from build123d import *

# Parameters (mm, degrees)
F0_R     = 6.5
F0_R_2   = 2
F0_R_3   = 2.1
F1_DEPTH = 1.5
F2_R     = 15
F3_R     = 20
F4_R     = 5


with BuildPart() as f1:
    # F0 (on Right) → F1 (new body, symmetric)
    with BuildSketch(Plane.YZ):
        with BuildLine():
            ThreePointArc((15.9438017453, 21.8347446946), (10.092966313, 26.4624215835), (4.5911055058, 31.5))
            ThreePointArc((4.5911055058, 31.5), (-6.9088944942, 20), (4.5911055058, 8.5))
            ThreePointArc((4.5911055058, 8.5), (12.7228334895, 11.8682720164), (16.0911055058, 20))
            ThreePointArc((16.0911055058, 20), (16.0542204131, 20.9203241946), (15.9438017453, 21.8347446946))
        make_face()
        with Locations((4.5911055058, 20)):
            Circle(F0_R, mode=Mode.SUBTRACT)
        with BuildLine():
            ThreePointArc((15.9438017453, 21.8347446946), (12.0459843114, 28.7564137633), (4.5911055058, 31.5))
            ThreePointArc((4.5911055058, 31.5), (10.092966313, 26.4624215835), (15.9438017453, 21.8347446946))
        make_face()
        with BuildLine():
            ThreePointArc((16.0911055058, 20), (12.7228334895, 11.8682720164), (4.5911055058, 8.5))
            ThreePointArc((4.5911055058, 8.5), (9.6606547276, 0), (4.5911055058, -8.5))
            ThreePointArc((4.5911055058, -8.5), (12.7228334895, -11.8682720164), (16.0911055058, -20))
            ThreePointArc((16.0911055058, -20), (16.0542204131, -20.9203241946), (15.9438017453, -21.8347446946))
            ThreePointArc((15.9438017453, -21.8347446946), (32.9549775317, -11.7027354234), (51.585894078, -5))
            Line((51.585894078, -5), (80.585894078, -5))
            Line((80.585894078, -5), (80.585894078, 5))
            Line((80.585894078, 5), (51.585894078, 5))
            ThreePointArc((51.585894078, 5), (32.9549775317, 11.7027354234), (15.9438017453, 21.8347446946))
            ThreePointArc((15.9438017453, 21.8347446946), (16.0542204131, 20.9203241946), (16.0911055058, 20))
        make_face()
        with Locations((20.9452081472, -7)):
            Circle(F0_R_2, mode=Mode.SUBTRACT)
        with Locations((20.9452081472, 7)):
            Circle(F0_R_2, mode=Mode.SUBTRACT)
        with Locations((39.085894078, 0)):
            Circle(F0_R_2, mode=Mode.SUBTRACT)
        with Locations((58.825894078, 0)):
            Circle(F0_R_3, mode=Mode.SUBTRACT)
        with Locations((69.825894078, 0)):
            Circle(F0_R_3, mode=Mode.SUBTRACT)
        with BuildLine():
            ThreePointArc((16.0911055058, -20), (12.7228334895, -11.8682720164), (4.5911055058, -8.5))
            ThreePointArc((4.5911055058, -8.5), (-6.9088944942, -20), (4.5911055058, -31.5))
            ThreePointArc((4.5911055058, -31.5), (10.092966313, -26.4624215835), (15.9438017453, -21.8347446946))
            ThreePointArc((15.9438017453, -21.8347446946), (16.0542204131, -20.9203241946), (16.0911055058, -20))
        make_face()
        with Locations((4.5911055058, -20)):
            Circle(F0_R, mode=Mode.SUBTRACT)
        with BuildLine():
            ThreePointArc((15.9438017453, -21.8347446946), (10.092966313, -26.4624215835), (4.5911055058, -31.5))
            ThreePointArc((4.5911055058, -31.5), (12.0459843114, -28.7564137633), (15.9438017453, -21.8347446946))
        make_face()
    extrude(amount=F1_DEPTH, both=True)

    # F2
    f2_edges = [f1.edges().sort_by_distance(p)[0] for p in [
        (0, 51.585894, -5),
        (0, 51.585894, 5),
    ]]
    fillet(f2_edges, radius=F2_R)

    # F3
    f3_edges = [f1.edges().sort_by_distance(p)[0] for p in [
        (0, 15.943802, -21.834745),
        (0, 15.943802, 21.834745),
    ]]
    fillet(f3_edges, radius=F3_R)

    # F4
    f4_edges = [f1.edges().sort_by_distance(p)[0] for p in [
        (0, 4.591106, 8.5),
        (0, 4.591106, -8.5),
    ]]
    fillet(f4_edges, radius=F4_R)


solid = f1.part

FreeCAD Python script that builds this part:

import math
import FreeCAD as App
import Part
import Sketcher
from FreeCAD import Vector
Q = App.Units.Quantity


def edges_at(feature, points):
    """Names of the edges that pass closest to the given points."""
    edges = feature.Shape.Edges
    near = lambda p: min(range(len(edges)), key=lambda i: edges[i].distToShape(Part.Vertex(*p))[0])
    return sorted({f"Edge{near(p) + 1}" for p in points})

doc = App.newDocument("Part")
body = doc.addObject("PartDesign::Body", "Body")

# Sketch on YZ plane
sketch1 = doc.addObject("Sketcher::SketchObject", "Sketch")
body.addObject(sketch1)
sketch1.AttachmentSupport = (doc.YZ_Plane, [""])
sketch1.MapMode = "FlatFace"
sketch1.addGeometry(Part.ArcOfCircle(Part.Circle(Vector(4.6, 20, 0), Vector(0, 0, 1), 11.5), math.radians(9), math.radians(270)), False)
sketch1.addGeometry(Part.ArcOfCircle(Part.Circle(Vector(0, 0, 0), Vector(0, 0, 1), 9.7), math.radians(-62), math.radians(62)), False)
sketch1.addGeometry(Part.ArcOfCircle(Part.Circle(Vector(4.6, -20, 0), Vector(0, 0, 1), 11.5), math.radians(90), math.radians(351)), False)
sketch1.addGeometry(Part.ArcOfCircle(Part.Circle(Vector(77.1, -105.2, 0), Vector(0, 0, 1), 103.4), math.radians(104), math.radians(126)), False)
sketch1.addGeometry(Part.LineSegment(Vector(51.6, -5, 0), Vector(80.6, -5, 0)), False)
sketch1.addGeometry(Part.LineSegment(Vector(80.6, -5, 0), Vector(80.6, 5, 0)), False)
sketch1.addGeometry(Part.LineSegment(Vector(80.6, 5, 0), Vector(51.6, 5, 0)), False)
sketch1.addGeometry(Part.ArcOfCircle(Part.Circle(Vector(77.1, 105.2, 0), Vector(0, 0, 1), 103.4), math.radians(-126), math.radians(-104)), False)
sketch1.addGeometry(Part.Circle(Vector(4.6, -20, 0), Vector(0, 0, 1), 6.5), False)
sketch1.addGeometry(Part.Circle(Vector(20.9, -7, 0), Vector(0, 0, 1), 2), False)
sketch1.addGeometry(Part.Circle(Vector(20.9, 7, 0), Vector(0, 0, 1), 2), False)
sketch1.addGeometry(Part.Circle(Vector(4.6, 20, 0), Vector(0, 0, 1), 6.5), False)
sketch1.addGeometry(Part.Circle(Vector(39.1, 0, 0), Vector(0, 0, 1), 2), False)
sketch1.addGeometry(Part.Circle(Vector(58.8, 0, 0), Vector(0, 0, 1), 2.1), False)
sketch1.addGeometry(Part.Circle(Vector(69.8, 0, 0), Vector(0, 0, 1), 2.1), False)
sketch1.addConstraint(Sketcher.Constraint("Coincident", 0, 2, 1, 2))
sketch1.addConstraint(Sketcher.Constraint("Coincident", 1, 1, 2, 1))
sketch1.addConstraint(Sketcher.Constraint("Coincident", 2, 2, 3, 2))
sketch1.addConstraint(Sketcher.Constraint("Coincident", 3, 1, 4, 1))
sketch1.addConstraint(Sketcher.Constraint("Coincident", 4, 2, 5, 1))
sketch1.addConstraint(Sketcher.Constraint("Coincident", 5, 2, 6, 1))
sketch1.addConstraint(Sketcher.Constraint("Coincident", 6, 2, 7, 2))
sketch1.addConstraint(Sketcher.Constraint("Coincident", 7, 1, 0, 1))
sketch1.addConstraint(Sketcher.Constraint("Horizontal", 4))
sketch1.addConstraint(Sketcher.Constraint("Vertical", 5))
sketch1.addConstraint(Sketcher.Constraint("Horizontal", 6))
sketch1.addConstraint(Sketcher.Constraint("Coincident", 1, 3, -1, 1))
sketch1.addConstraint(Sketcher.Constraint("Coincident", 8, 3, 2, 3))
sketch1.addConstraint(Sketcher.Constraint("Coincident", 11, 3, 0, 3))
sketch1.addConstraint(Sketcher.Constraint("Equal", 0, 2))
sketch1.addConstraint(Sketcher.Constraint("Equal", 3, 7))
sketch1.addConstraint(Sketcher.Constraint("Equal", 9, 10))
sketch1.addConstraint(Sketcher.Constraint("Equal", 8, 11))
sketch1.addConstraint(Sketcher.Constraint("Equal", 10, 12))
sketch1.addConstraint(Sketcher.Constraint("Equal", 13, 14))
sketch1.addConstraint(Sketcher.Constraint("Symmetric", 0, 3, 2, 3, -1))
sketch1.addConstraint(Sketcher.Constraint("Symmetric", 3, 3, 7, 3, -1))
sketch1.addConstraint(Sketcher.Constraint("Symmetric", 9, 3, 10, 3, -1))
sketch1.addConstraint(Sketcher.Constraint("PointOnObject", 12, 3, -1))
sketch1.addConstraint(Sketcher.Constraint("PointOnObject", 13, 3, -1))
sketch1.addConstraint(Sketcher.Constraint("PointOnObject", 14, 3, -1))
sketch1.addConstraint(Sketcher.Constraint("Vertical", 11, 3, 0, 2))
sketch1.addConstraint(Sketcher.Constraint("Vertical", 3, 1, 6, 2))
sketch1.addConstraint(Sketcher.Constraint("Diameter", 8, Q("13 mm")))
sketch1.addConstraint(Sketcher.Constraint("Diameter", 9, Q("4 mm")))
sketch1.addConstraint(Sketcher.Constraint("Diameter", 13, Q("4.2 mm")))
sketch1.addConstraint(Sketcher.Constraint("Radius", 0, Q("11.5 mm")))
sketch1.addConstraint(Sketcher.Constraint("DistanceX", 4, 1, 4, 2, Q("29 mm")))
sketch1.addConstraint(Sketcher.Constraint("DistanceY", 5, 1, 5, 2, Q("10 mm")))
sketch1.addConstraint(Sketcher.Constraint("DistanceY", -1, 1, 0, 3, Q("20 mm")))
sketch1.addConstraint(Sketcher.Constraint("DistanceY", 9, 3, -1, 1, Q("7 mm")))
sketch1.addConstraint(Sketcher.Constraint("DistanceX", 13, 3, 14, 3, Q("11 mm")))
sketch1.addConstraint(Sketcher.Constraint("DistanceX", 12, 3, 3, 1, Q("12.5 mm")))
sketch1.addConstraint(Sketcher.Constraint("DistanceX", 12, 3, 13, 3, Q("19.74 mm")))
sketch1.addConstraint(Sketcher.Constraint("Radius", 1, Q("9.660655 mm")))
sketch1.addConstraint(Sketcher.Constraint("Radius", 3, Q("103.370323 mm")))
sketch1.addConstraint(Sketcher.Constraint("DistanceX", -1, 1, 2, 2, Q("15.943802 mm")))
sketch1.addConstraint(Sketcher.Constraint("DistanceX", -1, 1, 9, 3, Q("20.945208 mm")))
sketch1.addConstraint(Sketcher.Constraint("DistanceY", 3, 3, 7, 3, Q("210.342811 mm")))
pad1 = doc.addObject("PartDesign::Pad", "Pad")
body.addObject(pad1)
pad1.Profile = sketch1
pad1.Length = 3
pad1.Midplane = True
doc.recompute()

fillet = doc.addObject("PartDesign::Fillet", "Fillet")
body.addObject(fillet)
fillet.Base = (pad1, edges_at(pad1, [(0, 51.586, -5), (0, 51.586, 5)]))
fillet.Radius = 15
doc.recompute()

fillet2 = doc.addObject("PartDesign::Fillet", "Fillet001")
body.addObject(fillet2)
fillet2.Base = (fillet, edges_at(fillet, [(0, 15.944, -21.835), (0, 15.944, 21.835)]))
fillet2.Radius = 20
doc.recompute()

fillet3 = doc.addObject("PartDesign::Fillet", "Fillet002")
body.addObject(fillet3)
fillet3.Base = (fillet2, edges_at(fillet2, [(0, 4.591, 8.5), (0, 4.591, -8.5)]))
fillet3.Radius = 5

doc.recompute()
